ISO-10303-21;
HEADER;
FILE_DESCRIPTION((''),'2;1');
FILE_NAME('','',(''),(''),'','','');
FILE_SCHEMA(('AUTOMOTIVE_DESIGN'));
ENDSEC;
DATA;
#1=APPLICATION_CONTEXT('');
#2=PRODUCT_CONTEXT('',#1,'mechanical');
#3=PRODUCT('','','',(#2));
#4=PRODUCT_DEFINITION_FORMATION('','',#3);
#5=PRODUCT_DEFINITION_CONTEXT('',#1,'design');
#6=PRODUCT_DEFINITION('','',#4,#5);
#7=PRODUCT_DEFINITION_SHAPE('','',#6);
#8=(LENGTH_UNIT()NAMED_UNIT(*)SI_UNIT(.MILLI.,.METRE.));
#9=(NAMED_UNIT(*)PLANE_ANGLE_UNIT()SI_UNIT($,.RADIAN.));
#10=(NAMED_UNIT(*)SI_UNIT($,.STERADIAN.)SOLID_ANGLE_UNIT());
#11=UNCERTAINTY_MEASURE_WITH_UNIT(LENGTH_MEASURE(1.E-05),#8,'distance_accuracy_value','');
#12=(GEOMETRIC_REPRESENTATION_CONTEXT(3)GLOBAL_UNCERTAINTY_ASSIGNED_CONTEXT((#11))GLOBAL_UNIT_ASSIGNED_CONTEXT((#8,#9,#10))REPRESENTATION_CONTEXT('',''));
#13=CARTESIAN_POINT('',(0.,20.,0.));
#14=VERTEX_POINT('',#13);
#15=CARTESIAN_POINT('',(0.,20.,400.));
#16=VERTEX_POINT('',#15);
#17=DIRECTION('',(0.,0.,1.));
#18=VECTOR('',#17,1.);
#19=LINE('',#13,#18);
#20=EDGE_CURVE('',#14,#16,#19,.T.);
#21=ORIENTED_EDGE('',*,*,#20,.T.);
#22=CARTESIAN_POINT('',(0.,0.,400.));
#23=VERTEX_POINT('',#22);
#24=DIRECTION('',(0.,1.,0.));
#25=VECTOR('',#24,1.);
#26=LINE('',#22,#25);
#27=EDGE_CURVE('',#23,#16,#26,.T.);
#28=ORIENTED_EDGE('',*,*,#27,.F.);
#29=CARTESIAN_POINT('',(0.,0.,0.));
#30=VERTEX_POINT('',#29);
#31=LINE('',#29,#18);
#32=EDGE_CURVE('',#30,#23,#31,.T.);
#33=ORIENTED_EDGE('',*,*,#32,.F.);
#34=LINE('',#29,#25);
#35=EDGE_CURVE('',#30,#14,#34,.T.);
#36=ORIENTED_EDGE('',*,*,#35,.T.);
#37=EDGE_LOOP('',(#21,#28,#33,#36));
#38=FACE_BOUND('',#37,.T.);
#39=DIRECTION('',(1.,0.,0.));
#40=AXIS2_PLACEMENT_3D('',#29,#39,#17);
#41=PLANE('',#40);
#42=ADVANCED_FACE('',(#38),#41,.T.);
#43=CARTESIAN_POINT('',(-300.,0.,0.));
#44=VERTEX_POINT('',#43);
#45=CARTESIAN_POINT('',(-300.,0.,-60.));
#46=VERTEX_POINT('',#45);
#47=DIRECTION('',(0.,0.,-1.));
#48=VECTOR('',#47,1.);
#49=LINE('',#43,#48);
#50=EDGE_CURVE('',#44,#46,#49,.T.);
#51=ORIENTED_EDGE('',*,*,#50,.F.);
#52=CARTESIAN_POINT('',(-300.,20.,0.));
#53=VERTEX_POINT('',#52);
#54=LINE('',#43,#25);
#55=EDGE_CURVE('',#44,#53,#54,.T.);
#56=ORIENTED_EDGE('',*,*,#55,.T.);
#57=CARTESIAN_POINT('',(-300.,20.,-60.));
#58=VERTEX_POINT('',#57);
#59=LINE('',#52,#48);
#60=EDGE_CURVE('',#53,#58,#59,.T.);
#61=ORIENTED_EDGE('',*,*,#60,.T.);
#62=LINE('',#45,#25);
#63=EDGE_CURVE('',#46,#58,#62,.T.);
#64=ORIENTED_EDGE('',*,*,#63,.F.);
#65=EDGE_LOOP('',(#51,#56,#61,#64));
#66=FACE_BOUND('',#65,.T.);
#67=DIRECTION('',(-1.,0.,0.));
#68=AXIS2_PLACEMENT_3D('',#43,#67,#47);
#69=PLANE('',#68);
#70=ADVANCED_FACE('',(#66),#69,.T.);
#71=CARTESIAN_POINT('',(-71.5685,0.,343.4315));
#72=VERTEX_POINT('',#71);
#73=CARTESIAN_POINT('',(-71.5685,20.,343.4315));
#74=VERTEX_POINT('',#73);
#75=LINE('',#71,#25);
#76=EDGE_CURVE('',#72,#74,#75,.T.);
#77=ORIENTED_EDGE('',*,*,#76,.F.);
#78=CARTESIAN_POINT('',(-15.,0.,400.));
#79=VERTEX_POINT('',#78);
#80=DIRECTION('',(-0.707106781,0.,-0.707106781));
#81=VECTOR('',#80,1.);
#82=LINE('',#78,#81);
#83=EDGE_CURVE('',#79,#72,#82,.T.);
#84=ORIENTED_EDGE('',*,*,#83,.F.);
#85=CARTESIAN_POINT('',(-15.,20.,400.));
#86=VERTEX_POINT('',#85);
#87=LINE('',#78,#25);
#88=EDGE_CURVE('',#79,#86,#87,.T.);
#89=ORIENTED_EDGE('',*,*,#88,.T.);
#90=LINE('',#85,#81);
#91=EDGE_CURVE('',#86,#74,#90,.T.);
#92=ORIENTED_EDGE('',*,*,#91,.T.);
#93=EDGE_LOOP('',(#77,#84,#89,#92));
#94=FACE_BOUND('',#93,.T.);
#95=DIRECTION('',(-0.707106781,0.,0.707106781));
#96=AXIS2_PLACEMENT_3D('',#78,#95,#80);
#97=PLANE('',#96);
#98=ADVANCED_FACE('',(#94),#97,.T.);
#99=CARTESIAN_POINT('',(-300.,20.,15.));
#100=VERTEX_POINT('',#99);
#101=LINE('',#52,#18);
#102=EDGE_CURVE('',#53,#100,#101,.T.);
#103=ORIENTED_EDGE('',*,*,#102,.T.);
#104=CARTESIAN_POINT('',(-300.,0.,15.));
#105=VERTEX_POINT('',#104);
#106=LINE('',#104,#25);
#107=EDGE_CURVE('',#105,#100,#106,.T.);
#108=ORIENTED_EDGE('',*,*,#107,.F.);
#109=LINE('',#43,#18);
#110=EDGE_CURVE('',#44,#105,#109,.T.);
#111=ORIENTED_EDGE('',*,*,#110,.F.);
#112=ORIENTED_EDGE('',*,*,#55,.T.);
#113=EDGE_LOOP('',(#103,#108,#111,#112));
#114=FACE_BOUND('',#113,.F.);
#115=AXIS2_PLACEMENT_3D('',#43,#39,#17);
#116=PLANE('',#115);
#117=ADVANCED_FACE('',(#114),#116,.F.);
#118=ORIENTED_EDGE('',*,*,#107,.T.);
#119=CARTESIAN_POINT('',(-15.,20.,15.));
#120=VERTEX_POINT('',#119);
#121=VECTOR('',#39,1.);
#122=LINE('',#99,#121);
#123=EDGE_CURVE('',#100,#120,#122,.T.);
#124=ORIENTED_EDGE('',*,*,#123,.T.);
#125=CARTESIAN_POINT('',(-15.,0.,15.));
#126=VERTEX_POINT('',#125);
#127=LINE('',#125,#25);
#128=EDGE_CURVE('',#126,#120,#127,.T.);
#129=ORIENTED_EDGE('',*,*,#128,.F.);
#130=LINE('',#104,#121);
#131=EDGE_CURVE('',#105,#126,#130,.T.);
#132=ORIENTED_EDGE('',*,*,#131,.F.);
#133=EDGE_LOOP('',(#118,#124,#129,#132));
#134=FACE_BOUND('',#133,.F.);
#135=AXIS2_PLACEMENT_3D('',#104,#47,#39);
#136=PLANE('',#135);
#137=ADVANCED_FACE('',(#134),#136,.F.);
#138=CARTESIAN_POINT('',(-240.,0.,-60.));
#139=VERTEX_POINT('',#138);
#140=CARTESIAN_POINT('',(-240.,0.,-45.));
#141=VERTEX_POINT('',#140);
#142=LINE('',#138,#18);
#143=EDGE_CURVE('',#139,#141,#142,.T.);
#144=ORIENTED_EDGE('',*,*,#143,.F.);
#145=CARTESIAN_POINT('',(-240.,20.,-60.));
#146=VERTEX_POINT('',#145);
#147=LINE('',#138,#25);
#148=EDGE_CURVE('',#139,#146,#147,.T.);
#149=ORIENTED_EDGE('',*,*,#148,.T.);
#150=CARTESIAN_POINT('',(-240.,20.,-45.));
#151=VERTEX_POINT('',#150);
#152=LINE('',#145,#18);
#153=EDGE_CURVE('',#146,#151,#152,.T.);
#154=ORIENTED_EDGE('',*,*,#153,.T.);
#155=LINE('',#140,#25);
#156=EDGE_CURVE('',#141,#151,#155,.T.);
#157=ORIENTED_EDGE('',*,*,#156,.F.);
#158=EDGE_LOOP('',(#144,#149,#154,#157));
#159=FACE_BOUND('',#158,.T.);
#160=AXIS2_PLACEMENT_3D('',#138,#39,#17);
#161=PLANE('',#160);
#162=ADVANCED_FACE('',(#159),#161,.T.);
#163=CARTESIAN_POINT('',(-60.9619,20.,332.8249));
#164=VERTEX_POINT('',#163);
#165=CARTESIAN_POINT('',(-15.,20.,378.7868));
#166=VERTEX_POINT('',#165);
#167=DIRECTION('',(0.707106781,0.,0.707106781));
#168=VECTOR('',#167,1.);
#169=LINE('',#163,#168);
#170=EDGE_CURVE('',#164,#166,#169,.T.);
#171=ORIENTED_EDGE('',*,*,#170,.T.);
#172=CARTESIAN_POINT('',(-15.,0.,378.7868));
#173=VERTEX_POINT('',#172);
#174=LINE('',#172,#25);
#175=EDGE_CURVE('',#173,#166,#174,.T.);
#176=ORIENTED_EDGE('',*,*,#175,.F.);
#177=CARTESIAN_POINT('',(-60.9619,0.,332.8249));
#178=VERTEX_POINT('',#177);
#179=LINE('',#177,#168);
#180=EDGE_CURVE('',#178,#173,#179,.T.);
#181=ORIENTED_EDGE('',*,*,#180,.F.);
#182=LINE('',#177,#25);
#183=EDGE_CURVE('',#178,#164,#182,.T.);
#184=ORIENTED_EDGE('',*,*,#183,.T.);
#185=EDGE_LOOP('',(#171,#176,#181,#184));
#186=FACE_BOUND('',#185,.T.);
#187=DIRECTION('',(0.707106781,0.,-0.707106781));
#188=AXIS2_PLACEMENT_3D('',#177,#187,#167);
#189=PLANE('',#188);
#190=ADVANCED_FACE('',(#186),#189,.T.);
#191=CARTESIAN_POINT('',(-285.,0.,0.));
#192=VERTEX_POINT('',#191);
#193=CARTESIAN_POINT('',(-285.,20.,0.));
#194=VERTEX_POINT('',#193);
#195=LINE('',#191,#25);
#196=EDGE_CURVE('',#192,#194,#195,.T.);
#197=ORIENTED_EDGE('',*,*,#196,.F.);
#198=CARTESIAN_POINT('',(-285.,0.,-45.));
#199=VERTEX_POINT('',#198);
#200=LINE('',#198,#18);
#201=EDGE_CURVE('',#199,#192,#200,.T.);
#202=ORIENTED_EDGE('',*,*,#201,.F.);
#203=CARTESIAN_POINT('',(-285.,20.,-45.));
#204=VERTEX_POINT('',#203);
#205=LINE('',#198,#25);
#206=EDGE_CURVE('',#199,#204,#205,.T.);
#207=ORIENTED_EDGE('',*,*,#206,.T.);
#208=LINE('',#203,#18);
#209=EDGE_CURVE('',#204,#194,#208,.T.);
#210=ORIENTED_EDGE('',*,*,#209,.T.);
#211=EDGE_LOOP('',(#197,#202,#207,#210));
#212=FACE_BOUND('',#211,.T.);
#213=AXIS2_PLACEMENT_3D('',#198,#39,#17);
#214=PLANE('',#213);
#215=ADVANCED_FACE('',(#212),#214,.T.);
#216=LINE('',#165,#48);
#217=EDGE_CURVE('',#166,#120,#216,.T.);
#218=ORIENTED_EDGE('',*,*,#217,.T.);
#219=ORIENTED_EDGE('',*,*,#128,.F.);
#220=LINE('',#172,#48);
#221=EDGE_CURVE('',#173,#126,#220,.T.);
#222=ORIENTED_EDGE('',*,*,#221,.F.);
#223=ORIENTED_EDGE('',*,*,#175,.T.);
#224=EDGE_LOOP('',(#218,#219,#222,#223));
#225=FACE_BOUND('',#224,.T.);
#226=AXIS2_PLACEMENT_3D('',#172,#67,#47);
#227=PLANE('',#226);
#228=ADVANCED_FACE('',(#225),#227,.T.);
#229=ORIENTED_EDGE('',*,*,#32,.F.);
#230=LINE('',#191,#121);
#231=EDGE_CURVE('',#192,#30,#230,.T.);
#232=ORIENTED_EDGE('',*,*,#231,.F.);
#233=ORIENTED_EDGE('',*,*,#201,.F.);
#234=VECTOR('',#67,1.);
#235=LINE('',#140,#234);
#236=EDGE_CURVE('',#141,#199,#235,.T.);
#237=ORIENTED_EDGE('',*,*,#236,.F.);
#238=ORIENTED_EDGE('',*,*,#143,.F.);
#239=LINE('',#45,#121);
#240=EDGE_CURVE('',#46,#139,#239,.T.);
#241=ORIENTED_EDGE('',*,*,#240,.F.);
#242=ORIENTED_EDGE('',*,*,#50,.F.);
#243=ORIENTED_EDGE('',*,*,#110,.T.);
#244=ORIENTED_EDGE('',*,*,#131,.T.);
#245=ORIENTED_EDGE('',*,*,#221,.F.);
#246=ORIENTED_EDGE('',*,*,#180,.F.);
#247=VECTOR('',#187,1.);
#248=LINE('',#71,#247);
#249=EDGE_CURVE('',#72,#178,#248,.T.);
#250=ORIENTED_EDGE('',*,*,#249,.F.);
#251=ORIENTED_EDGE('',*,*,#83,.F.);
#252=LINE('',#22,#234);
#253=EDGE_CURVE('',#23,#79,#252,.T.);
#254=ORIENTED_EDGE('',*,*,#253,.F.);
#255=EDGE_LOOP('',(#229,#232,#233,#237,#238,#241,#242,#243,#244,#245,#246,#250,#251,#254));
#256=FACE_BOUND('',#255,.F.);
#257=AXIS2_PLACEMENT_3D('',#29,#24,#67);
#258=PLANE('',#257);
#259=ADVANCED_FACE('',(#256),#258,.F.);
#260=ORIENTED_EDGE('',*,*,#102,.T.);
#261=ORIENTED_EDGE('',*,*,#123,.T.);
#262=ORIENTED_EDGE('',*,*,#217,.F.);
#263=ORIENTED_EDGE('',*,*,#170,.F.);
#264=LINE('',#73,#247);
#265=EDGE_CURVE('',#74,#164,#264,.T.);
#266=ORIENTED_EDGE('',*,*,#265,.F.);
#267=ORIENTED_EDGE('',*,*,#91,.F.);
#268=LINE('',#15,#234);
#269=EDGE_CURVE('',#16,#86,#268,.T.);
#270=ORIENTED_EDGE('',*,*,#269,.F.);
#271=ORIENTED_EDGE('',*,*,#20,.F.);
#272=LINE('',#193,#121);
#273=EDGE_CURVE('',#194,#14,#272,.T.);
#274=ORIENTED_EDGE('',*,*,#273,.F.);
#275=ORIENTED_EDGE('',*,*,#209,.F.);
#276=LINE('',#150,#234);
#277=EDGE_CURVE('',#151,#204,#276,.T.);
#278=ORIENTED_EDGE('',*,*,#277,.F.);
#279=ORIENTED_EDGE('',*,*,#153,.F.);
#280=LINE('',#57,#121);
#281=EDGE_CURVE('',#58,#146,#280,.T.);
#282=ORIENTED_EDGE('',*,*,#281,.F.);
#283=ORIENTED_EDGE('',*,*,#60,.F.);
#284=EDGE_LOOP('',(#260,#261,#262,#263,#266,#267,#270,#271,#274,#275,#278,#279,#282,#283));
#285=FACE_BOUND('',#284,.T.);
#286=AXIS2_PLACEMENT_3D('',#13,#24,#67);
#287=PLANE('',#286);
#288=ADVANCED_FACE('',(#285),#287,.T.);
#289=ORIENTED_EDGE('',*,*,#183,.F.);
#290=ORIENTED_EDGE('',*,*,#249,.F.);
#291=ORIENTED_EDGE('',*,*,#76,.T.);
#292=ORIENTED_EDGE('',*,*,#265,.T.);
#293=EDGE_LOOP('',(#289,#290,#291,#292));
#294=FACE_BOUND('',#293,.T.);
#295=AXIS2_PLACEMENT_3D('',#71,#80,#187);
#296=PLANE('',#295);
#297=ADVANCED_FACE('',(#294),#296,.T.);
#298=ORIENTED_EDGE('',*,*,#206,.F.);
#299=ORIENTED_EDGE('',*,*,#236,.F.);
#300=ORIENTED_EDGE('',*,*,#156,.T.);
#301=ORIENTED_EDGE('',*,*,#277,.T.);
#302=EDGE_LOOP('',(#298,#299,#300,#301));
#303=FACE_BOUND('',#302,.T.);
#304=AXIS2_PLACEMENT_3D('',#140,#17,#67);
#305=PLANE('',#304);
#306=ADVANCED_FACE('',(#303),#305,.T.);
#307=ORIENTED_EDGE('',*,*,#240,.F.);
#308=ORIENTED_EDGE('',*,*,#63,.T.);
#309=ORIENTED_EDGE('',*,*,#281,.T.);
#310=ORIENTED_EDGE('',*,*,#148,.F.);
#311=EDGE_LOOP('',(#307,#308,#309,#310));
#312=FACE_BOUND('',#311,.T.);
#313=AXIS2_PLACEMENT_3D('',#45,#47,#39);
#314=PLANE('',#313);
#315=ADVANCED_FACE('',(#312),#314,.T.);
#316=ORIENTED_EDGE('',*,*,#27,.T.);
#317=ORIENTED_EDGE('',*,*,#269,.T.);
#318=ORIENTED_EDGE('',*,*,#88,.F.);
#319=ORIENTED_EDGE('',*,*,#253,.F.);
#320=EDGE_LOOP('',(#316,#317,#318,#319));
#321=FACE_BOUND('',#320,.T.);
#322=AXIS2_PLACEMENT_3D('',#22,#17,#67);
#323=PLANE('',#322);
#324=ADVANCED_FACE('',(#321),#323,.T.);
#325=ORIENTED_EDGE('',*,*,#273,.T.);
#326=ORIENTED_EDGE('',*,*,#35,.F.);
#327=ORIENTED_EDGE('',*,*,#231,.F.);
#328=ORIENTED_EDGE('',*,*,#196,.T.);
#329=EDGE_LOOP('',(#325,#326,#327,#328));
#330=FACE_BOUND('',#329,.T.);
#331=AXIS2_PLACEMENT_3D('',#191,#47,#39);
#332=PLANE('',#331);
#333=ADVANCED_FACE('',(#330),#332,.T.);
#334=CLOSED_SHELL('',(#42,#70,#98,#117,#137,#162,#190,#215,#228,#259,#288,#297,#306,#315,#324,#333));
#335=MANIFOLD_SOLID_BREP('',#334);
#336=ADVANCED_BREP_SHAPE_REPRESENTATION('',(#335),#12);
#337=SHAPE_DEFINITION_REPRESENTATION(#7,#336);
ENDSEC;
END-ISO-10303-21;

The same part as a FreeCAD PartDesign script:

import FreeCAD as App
import Part
import Sketcher
from FreeCAD import Vector
Q = App.Units.Quantity

doc = App.newDocument("Part")
body = doc.addObject("PartDesign::Body", "Body")

sketch1 = doc.addObject("Sketcher::SketchObject", "Sketch")
body.addObject(sketch1)
sketch1.AttachmentSupport = (doc.XZ_Plane, [""])
sketch1.MapMode = "FlatFace"
sketch1.addGeometry([
    Part.LineSegment(Vector(-300, -60, 0), Vector(-300, 15, 0)),
    Part.LineSegment(Vector(-300, 15, 0), Vector(-15, 15, 0)),
    Part.LineSegment(Vector(-15, 15, 0), Vector(-15, 378.7868, 0)),
    Part.LineSegment(Vector(-15, 378.7868, 0), Vector(-60.9619, 332.8249, 0)),
    Part.LineSegment(Vector(-60.9619, 332.8249, 0), Vector(-71.5685, 343.4315, 0)),
    Part.LineSegment(Vector(-71.5685, 343.4315, 0), Vector(-15, 400, 0)),
    Part.LineSegment(Vector(-15, 400, 0), Vector(0, 400, 0)),
    Part.LineSegment(Vector(0, 400, 0), Vector(0, 0, 0)),
    Part.LineSegment(Vector(0, 0, 0), Vector(-285, 0, 0)),
    Part.LineSegment(Vector(-285, 0, 0), Vector(-285, -45, 0)),
    Part.LineSegment(Vector(-285, -45, 0), Vector(-240, -45, 0)),
    Part.LineSegment(Vector(-240, -45, 0), Vector(-240, -60, 0)),
    Part.LineSegment(Vector(-240, -60, 0), Vector(-300, -60, 0)),
], False)
sketch1.addConstraint([
    Sketcher.Constraint("Coincident", 0, 2, 1, 1),
    Sketcher.Constraint("Coincident", 1, 2, 2, 1),
    Sketcher.Constraint("Coincident", 2, 2, 3, 1),
    Sketcher.Constraint("Coincident", 3, 2, 4, 1),
    Sketcher.Constraint("Coincident", 4, 2, 5, 1),
    Sketcher.Constraint("Coincident", 5, 2, 6, 1),
    Sketcher.Constraint("Coincident", 6, 2, 7, 1),
    Sketcher.Constraint("Coincident", 7, 2, 8, 1),
    Sketcher.Constraint("Coincident", 8, 2, 9, 1),
    Sketcher.Constraint("Coincident", 9, 2, 10, 1),
    Sketcher.Constraint("Coincident", 10, 2, 11, 1),
    Sketcher.Constraint("Coincident", 11, 2, 12, 1),
    Sketcher.Constraint("Coincident", 12, 2, 0, 1),
    Sketcher.Constraint("Vertical", 0),
    Sketcher.Constraint("Horizontal", 1),
    Sketcher.Constraint("Vertical", 2),
    Sketcher.Constraint("Horizontal", 6),
    Sketcher.Constraint("Vertical", 7),
    Sketcher.Constraint("Horizontal", 8),
    Sketcher.Constraint("Vertical", 9),
    Sketcher.Constraint("Horizontal", 10),
    Sketcher.Constraint("Vertical", 11),
    Sketcher.Constraint("Horizontal", 12),
    Sketcher.Constraint("Coincident", 7, 2, -1, 1),
    Sketcher.Constraint("Perpendicular", 3, 4),
    Sketcher.Constraint("Perpendicular", 4, 5),
    Sketcher.Constraint("Vertical", 2, 2, 5, 2),
    Sketcher.Constraint("Equal", 1, 8),
    Sketcher.Constraint("Equal", 10, 9),
    Sketcher.Constraint("Equal", 6, 11),
    Sketcher.Constraint("DistanceX", 6, 1, 6, 2, 15.0),
    Sketcher.Constraint("DistanceX", 10, 1, 10, 2, 45.0),
    Sketcher.Constraint("DistanceY", 7, 2, 7, 1, 400.0),
    Sketcher.Constraint("Angle", 5, Q("45 deg")),
    Sketcher.Constraint("Distance", 4, 15.0),
    Sketcher.Constraint("Distance", 5, 80.0),
    Sketcher.Constraint("DistanceY", -1, 1, 0, 2, 15.0),
    Sketcher.Constraint("DistanceX", 1, 1, 1, 2, 285.0),
])
pad1 = doc.addObject("PartDesign::Pad", "Pad")
body.addObject(pad1)
pad1.Profile = sketch1
pad1.Length = 20
pad1.Reversed = True

doc.recompute()
